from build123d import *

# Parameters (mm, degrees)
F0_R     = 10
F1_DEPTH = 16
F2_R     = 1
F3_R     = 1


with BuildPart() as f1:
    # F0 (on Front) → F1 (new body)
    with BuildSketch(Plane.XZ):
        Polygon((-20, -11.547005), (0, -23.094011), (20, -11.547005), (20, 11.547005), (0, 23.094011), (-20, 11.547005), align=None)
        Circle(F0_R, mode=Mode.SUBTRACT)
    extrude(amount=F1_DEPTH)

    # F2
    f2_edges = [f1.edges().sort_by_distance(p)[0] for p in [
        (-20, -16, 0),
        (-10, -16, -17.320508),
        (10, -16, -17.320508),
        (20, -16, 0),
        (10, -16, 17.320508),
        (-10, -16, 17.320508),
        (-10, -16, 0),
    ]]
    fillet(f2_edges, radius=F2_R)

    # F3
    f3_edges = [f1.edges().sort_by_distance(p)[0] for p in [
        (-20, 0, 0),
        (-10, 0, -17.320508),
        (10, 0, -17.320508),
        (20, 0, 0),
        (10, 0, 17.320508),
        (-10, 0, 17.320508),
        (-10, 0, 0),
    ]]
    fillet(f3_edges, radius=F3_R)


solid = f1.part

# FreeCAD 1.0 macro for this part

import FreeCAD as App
import Part
import Sketcher
from FreeCAD import Vector
Q = App.Units.Quantity


def edges_at(feature, points):
    """Names of the edges that pass closest to the given points."""
    edges = feature.Shape.Edges
    near = lambda p: min(range(len(edges)), key=lambda i: edges[i].distToShape(Part.Vertex(*p))[0])
    return sorted({f"Edge{near(p) + 1}" for p in points})

doc = App.newDocument("Part")
body = doc.addObject("PartDesign::Body", "Body")

sketch1 = body.newObject("Sketcher::SketchObject", "Sketch")
sketch1.AttachmentSupport = (doc.getObject("XZ_Plane"), [""])
sketch1.MapMode = "FlatFace"
sketch1.addGeometry([
    Part.LineSegment(Vector(-20, -12, 0), Vector(0, -23, 0)),
    Part.LineSegment(Vector(0, -23, 0), Vector(20, -12, 0)),
    Part.LineSegment(Vector(20, -12, 0), Vector(20, 12, 0)),
    Part.LineSegment(Vector(20, 12, 0), Vector(0, 23, 0)),
    Part.LineSegment(Vector(0, 23, 0), Vector(-20, 12, 0)),
    Part.LineSegment(Vector(-20, 12, 0), Vector(-20, -12, 0)),
    Part.Circle(Vector(0, 0, 0), Vector(0, 0, 1), 10),
], False)
sketch1.addConstraint([
    Sketcher.Constraint("Coincident", 0, 2, 1, 1),
    Sketcher.Constraint("Coincident", 1, 2, 2, 1),
    Sketcher.Constraint("Coincident", 2, 2, 3, 1),
    Sketcher.Constraint("Coincident", 3, 2, 4, 1),
    Sketcher.Constraint("Coincident", 4, 2, 5, 1),
    Sketcher.Constraint("Coincident", 5, 2, 0, 1),
    Sketcher.Constraint("Vertical", 2),
    Sketcher.Constraint("Vertical", 5),
    Sketcher.Constraint("Coincident", 6, 3, -1, 1),
    Sketcher.Constraint("Symmetric", 0, 2, 3, 2, -1, 1),
    Sketcher.Constraint("Symmetric", 1, 2, 4, 2, -1, 1),
    Sketcher.Constraint("PointOnObject", 0, 2, -2),
    Sketcher.Constraint("Parallel", 0, 3),
    Sketcher.Constraint("Horizontal", 2, 2, 4, 2),
    Sketcher.Constraint("Diameter", 6, Q("20 mm")),
    Sketcher.Constraint("Angle", 0, Q("-30.000001 deg")),
    Sketcher.Constraint("DistanceX", -1, 1, 1, 2, Q("20 mm")),
    Sketcher.Constraint("DistanceY", 2, 1, 2, 2, Q("23.09401 mm")),
])
pad1 = body.newObject("PartDesign::Pad", "Pad")
pad1.Profile = sketch1
pad1.Length = 16
doc.recompute()

fillet = body.newObject("PartDesign::Fillet", "Fillet")
fillet.Base = (pad1, edges_at(pad1, [
    (-20, -16, 0),
    (-10, -16, -17.321),
    (10, -16, -17.321),
    (20, -16, 0),
    (10, -16, 17.321),
    (-10, -16, 17.321),
    (-10, -16, 0),
]))
fillet.Radius = 1
doc.recompute()

fillet2 = body.newObject("PartDesign::Fillet", "Fillet001")
fillet2.Base = (fillet, edges_at(fillet, [
    (-20, 0, 0),
    (-10, 0, -17.321),
    (10, 0, -17.321),
    (20, 0, 0),
    (10, 0, 17.321),
    (-10, 0, 17.321),
    (-10, 0, 0),
]))
fillet2.Radius = 1

doc.recompute()
